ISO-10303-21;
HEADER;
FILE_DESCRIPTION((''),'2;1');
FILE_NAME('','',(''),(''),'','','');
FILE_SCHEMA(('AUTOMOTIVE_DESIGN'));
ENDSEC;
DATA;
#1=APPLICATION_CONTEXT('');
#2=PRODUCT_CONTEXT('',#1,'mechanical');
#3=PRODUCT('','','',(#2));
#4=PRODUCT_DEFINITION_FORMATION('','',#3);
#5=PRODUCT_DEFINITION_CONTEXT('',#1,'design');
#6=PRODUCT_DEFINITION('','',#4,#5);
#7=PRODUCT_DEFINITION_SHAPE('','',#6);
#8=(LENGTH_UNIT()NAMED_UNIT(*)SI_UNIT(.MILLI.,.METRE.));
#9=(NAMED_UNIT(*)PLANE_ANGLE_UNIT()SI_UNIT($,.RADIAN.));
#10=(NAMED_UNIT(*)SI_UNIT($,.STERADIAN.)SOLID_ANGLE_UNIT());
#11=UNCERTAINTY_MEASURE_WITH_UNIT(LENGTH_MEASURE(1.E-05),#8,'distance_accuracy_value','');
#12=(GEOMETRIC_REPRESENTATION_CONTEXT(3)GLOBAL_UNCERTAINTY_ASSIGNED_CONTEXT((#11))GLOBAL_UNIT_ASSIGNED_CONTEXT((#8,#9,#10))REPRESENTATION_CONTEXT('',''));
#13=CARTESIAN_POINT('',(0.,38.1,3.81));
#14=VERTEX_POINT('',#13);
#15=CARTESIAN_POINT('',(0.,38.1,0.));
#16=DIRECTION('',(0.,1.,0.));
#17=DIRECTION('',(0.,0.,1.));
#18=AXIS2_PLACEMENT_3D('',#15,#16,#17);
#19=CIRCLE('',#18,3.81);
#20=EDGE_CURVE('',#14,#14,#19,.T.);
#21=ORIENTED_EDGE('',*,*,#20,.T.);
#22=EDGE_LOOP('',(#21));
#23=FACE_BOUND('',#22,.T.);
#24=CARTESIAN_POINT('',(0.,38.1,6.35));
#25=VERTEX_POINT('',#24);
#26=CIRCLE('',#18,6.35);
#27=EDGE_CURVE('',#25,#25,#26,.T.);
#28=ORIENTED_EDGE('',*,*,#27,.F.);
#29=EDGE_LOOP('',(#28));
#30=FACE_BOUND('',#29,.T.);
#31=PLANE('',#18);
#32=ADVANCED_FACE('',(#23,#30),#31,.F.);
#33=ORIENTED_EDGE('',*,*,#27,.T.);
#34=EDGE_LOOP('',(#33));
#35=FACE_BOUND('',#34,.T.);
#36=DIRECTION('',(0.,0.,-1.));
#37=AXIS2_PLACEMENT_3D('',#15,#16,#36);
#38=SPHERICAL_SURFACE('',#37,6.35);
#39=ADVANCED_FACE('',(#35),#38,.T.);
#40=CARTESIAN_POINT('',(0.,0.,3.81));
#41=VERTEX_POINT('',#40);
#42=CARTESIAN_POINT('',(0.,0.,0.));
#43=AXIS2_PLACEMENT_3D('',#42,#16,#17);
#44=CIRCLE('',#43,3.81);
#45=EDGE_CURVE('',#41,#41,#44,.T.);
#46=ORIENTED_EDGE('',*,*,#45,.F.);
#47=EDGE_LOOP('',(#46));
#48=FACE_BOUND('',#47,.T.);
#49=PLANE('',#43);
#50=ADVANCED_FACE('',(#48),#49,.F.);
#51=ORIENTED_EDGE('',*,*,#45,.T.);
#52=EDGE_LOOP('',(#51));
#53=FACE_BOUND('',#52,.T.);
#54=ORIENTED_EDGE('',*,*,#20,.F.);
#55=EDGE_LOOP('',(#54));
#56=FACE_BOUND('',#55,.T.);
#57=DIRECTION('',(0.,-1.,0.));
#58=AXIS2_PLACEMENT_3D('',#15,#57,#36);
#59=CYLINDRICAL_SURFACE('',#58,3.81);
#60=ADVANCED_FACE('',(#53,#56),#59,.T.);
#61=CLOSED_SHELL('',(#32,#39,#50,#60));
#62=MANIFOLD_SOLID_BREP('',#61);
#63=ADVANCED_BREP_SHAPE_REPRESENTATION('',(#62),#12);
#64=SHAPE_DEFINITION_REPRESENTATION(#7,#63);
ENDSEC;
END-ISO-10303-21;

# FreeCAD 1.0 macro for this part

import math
import FreeCAD as App
import Part
import Sketcher

V = App.Vector
Q = App.Units.Quantity

doc = App.newDocument("Part")
body = doc.addObject("PartDesign::Body", "Body")

# Sketch on XZ plane
sketch1 = body.newObject("Sketcher::SketchObject", "Sketch")
sketch1.AttachmentSupport = (doc.getObject("XZ_Plane"), [""])
sketch1.MapMode = "FlatFace"
sketch1.addGeometry(Part.Circle(V(0, 0, 0), V(0, 0, 1), 3.81), False)
sketch1.addConstraint(Sketcher.Constraint("Coincident", 0, 3, -1, 1))
sketch1.addConstraint(Sketcher.Constraint("Diameter", 0, Q("0.3 in")))
pad1 = body.newObject("PartDesign::Pad", "Pad")
pad1.Profile = sketch1
pad1.Length = Q("1.5 in")
pad1.Reversed = True

# Sketch on YZ plane
sketch2 = body.newObject("Sketcher::SketchObject", "Sketch001")
sketch2.AttachmentSupport = (doc.getObject("YZ_Plane"), [""])
sketch2.MapMode = "FlatFace"
sketch2.addGeometry(Part.LineSegment(V(38.1, 0, 0), V(38.1, -6.35, 0)), False)
sketch2.addGeometry(Part.ArcOfCircle(Part.Circle(V(38.1, 0, 0), V(0, 0, 1), 6.35), math.radians(-90), math.radians(0)), False)
sketch2.addGeometry(Part.LineSegment(V(44.45, 0, 0), V(38.1, 0, 0)), False)
sketch2.addConstraint(Sketcher.Constraint("Coincident", 0, 2, 1, 1))
sketch2.addConstraint(Sketcher.Constraint("Coincident", 1, 2, 2, 1))
sketch2.addConstraint(Sketcher.Constraint("Coincident", 2, 2, 0, 1))
sketch2.addConstraint(Sketcher.Constraint("Vertical", 0))
sketch2.addConstraint(Sketcher.Constraint("Horizontal", 2))
sketch2.addConstraint(Sketcher.Constraint("Coincident", 2, 2, 1, 3))
sketch2.addConstraint(Sketcher.Constraint("PointOnObject", 1, 3, -1))
sketch2.addConstraint(Sketcher.Constraint("Radius", 1, Q("0.25 in")))
sketch2.addConstraint(Sketcher.Constraint("DistanceX", -1, 1, 1, 3, Q("1.5 in")))
revolution = body.newObject("PartDesign::Revolution", "Revolution")
revolution.Profile = sketch2
revolution.ReferenceAxis = (sketch2, ["H_Axis"])
revolution.Angle = 360

doc.recompute()
